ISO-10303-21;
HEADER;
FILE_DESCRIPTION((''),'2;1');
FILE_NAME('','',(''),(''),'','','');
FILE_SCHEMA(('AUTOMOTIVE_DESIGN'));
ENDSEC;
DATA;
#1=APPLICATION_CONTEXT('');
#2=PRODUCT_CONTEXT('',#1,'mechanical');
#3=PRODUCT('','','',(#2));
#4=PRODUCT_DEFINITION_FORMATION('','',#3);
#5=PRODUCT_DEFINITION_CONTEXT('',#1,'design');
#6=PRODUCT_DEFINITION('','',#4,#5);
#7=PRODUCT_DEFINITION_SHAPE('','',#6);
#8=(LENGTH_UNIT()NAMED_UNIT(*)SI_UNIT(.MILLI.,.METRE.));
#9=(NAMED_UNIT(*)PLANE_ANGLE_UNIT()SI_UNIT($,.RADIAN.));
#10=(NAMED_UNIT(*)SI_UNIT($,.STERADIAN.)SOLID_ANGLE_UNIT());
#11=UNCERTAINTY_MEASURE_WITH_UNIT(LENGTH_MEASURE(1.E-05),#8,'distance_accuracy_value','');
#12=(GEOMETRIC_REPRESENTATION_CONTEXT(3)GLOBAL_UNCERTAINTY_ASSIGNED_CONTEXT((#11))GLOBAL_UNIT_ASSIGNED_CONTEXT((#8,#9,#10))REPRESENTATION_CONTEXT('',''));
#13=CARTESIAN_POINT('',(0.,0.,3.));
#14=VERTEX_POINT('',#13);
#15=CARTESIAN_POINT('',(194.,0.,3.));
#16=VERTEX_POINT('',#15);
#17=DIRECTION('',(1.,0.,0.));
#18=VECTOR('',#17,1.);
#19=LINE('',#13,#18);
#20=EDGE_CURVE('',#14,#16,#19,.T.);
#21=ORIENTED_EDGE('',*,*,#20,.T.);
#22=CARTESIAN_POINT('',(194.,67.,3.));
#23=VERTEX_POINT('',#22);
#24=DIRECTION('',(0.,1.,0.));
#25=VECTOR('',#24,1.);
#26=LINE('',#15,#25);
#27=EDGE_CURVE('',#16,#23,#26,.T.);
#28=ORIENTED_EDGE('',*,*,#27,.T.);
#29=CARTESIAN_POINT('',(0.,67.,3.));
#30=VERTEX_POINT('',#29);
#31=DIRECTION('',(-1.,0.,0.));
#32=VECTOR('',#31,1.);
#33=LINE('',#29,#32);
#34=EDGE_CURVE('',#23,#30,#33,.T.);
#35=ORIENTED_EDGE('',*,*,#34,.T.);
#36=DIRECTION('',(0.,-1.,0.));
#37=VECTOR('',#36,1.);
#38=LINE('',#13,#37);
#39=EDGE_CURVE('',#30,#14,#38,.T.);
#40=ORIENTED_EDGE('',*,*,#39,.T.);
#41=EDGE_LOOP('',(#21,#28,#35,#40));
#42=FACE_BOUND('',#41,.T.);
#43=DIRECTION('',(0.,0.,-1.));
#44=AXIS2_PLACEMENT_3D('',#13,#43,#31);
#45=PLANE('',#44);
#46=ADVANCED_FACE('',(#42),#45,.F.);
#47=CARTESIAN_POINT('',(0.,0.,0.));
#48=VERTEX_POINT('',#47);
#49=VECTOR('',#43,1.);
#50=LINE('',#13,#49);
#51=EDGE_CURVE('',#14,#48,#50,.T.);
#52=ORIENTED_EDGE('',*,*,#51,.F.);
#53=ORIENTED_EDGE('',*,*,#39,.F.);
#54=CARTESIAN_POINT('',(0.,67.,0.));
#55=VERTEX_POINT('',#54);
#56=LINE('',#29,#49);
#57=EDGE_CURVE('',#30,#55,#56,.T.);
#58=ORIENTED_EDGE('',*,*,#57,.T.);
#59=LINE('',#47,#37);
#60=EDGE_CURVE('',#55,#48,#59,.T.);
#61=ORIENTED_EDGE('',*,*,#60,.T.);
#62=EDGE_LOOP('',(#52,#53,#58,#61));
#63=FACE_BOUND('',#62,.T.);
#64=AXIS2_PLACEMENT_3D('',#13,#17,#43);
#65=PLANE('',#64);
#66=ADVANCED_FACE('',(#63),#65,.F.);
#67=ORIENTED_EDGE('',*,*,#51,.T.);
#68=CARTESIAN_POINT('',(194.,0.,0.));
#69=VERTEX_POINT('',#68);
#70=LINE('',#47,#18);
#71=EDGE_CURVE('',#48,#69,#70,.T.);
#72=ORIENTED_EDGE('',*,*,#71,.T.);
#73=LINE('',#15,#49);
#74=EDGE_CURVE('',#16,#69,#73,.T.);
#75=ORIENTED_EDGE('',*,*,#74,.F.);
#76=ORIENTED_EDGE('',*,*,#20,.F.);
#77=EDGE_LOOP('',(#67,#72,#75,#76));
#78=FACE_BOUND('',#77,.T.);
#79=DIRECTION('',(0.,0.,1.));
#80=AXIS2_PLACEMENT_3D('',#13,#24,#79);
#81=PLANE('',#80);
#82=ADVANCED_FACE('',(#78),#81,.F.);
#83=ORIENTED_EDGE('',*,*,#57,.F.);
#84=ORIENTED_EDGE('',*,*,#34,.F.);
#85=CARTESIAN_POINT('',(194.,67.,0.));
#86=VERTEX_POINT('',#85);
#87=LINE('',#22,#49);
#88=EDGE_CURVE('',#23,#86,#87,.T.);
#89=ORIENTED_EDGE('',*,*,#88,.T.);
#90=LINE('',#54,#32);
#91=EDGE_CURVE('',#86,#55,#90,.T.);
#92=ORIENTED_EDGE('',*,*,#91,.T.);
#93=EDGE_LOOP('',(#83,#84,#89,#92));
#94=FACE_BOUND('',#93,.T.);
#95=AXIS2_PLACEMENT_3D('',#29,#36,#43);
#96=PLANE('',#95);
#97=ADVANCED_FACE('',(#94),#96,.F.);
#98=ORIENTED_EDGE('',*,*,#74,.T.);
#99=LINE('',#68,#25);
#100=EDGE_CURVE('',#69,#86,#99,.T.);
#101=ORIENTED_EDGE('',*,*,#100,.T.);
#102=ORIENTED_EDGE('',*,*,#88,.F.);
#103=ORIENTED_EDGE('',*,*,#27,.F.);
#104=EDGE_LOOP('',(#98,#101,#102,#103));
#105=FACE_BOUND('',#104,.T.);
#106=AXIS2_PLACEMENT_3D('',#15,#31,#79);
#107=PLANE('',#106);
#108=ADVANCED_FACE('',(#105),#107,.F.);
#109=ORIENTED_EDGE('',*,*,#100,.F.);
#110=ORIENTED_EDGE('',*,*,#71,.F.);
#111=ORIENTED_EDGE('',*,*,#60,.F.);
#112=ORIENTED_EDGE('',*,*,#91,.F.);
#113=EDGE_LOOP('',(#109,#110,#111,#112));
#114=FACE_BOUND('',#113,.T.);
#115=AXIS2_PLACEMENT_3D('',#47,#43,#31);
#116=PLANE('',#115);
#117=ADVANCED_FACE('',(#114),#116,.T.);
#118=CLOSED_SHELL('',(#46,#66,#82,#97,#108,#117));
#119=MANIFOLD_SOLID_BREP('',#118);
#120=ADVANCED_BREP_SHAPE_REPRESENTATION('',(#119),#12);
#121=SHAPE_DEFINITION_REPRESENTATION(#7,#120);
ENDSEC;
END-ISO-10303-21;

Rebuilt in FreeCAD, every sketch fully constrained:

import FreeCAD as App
import Part
import Sketcher
from FreeCAD import Vector

doc = App.newDocument("Part")
body = doc.addObject("PartDesign::Body", "Body")

# Sketch on XY plane
sketch1 = body.newObject("Sketcher::SketchObject", "Sketch")
sketch1.AttachmentSupport = (doc.getObject("XY_Plane"), [""])
sketch1.MapMode = "FlatFace"
sketch1.addGeometry([
    Part.LineSegment(Vector(0, 67, 0), Vector(0, 0, 0)),
    Part.LineSegment(Vector(0, 0, 0), Vector(194, 0, 0)),
    Part.LineSegment(Vector(194, 0, 0), Vector(194, 67, 0)),
    Part.LineSegment(Vector(194, 67, 0), Vector(0, 67, 0)),
], False)
sketch1.addConstraint([
    Sketcher.Constraint("Coincident", 0, 2, 1, 1),
    Sketcher.Constraint("Coincident", 1, 2, 2, 1),
    Sketcher.Constraint("Coincident", 2, 2, 3, 1),
    Sketcher.Constraint("Coincident", 3, 2, 0, 1),
    Sketcher.Constraint("Vertical", 0),
    Sketcher.Constraint("Horizontal", 1),
    Sketcher.Constraint("Vertical", 2),
    Sketcher.Constraint("Horizontal", 3),
    Sketcher.Constraint("Coincident", 0, 2, -1, 1),
    Sketcher.Constraint("DistanceX", 1, 1, 1, 2, 194.0),
    Sketcher.Constraint("DistanceY", 0, 2, 0, 1, 67.0),
])
pad1 = body.newObject("PartDesign::Pad", "Pad")
pad1.Profile = sketch1
pad1.Length = 3

doc.recompute()
